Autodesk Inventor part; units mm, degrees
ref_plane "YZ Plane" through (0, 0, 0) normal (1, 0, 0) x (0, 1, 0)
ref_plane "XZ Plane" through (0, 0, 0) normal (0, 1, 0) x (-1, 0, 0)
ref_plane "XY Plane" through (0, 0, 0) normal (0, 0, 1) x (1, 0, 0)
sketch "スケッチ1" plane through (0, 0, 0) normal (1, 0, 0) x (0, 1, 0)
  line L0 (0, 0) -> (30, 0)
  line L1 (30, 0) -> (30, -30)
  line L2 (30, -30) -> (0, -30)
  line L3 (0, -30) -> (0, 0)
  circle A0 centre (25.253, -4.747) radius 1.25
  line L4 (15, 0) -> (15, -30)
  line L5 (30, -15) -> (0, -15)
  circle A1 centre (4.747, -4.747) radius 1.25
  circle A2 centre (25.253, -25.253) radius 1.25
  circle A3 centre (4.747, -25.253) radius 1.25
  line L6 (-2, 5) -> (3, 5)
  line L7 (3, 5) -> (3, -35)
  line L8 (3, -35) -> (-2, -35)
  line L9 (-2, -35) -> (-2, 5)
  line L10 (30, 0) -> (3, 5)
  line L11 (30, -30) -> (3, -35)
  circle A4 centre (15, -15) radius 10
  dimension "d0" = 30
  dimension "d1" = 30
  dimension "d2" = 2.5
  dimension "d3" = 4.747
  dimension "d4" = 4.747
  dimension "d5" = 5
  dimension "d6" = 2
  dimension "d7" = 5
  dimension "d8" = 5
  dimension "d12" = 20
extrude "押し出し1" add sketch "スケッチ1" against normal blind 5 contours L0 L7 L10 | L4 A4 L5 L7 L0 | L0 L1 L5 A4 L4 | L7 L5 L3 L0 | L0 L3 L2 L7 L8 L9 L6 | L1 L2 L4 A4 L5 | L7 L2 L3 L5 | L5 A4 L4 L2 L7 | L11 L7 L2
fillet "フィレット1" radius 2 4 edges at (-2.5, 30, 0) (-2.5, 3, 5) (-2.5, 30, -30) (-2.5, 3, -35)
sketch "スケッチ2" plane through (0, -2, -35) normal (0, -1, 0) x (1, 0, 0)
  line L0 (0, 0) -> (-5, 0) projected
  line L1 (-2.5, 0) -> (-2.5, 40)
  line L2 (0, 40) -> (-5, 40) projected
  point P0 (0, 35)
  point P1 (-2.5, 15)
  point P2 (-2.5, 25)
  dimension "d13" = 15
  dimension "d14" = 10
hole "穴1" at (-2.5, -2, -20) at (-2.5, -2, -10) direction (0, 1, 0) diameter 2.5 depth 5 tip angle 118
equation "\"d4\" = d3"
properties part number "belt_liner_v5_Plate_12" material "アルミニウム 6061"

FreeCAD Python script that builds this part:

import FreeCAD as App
import Part
import Sketcher

V = App.Vector
Q = App.Units.Quantity


def edges_at(feature, points):
    """Names of the edges that pass closest to the given points."""
    edges = feature.Shape.Edges
    near = lambda p: min(range(len(edges)), key=lambda i: edges[i].distToShape(Part.Vertex(*p))[0])
    return sorted({f"Edge{near(p) + 1}" for p in points})

doc = App.newDocument("Part")
body = doc.addObject("PartDesign::Body", "Body")

sketch1 = body.newObject("Sketcher::SketchObject", "Sketch")
sketch1.AttachmentSupport = (doc.getObject("YZ_Plane"), [""])
sketch1.MapMode = "FlatFace"
sketch1.addGeometry([
    Part.LineSegment(V(30, 0, 0), V(3, 5, 0)),
    Part.LineSegment(V(3, 5, 0), V(-2, 5, 0)),
    Part.LineSegment(V(-2, 5, 0), V(-2, -35, 0)),
    Part.LineSegment(V(-2, -35, 0), V(3, -35, 0)),
    Part.LineSegment(V(3, -35, 0), V(30, -30, 0)),
    Part.LineSegment(V(30, -30, 0), V(30, 0, 0)),
    Part.Circle(V(15, -15, 0), V(0, 0, 1), 10),
    Part.Circle(V(4.7, -4.7, 0), V(0, 0, 1), 1.2),
    Part.Circle(V(25.3, -4.7, 0), V(0, 0, 1), 1.2),
    Part.Circle(V(4.7, -25.3, 0), V(0, 0, 1), 1.2),
    Part.Circle(V(25.3, -25.3, 0), V(0, 0, 1), 1.2),
], False)
sketch1.addConstraint([
    Sketcher.Constraint("Coincident", 0, 2, 1, 1),
    Sketcher.Constraint("Coincident", 1, 2, 2, 1),
    Sketcher.Constraint("Coincident", 2, 2, 3, 1),
    Sketcher.Constraint("Coincident", 3, 2, 4, 1),
    Sketcher.Constraint("Coincident", 4, 2, 5, 1),
    Sketcher.Constraint("Coincident", 5, 2, 0, 1),
    Sketcher.Constraint("Horizontal", 1),
    Sketcher.Constraint("Vertical", 2),
    Sketcher.Constraint("Horizontal", 3),
    Sketcher.Constraint("Vertical", 5),
    Sketcher.Constraint("Equal", 7, 8),
    Sketcher.Constraint("Equal", 8, 9),
    Sketcher.Constraint("Equal", 9, 10),
    Sketcher.Constraint("PointOnObject", 5, 2, -1),
    Sketcher.Constraint("Horizontal", 7, 3, 8, 3),
    Sketcher.Constraint("Horizontal", 9, 3, 10, 3),
    Sketcher.Constraint("Vertical", 7, 3, 9, 3),
    Sketcher.Constraint("Vertical", 8, 3, 10, 3),
    Sketcher.Constraint("Vertical", 0, 2, 3, 2),
    Sketcher.Constraint("Equal", 0, 4),
    Sketcher.Constraint("Diameter", 6, Q("20 mm")),
    Sketcher.Constraint("Diameter", 7, Q("2.5 mm")),
    Sketcher.Constraint("DistanceX", 1, 2, 1, 1, Q("5 mm")),
    Sketcher.Constraint("DistanceY", 5, 1, 5, 2, Q("30 mm")),
    Sketcher.Constraint("DistanceY", -1, 1, 0, 2, Q("5 mm")),
    Sketcher.Constraint("DistanceX", 1, 2, -1, 1, Q("2 mm")),
    Sketcher.Constraint("DistanceX", -1, 1, 4, 2, Q("30 mm")),
    Sketcher.Constraint("DistanceY", 6, 3, 0, 2, Q("20 mm")),
    Sketcher.Constraint("DistanceX", -1, 1, 6, 3, Q("15 mm")),
    Sketcher.Constraint("DistanceX", -1, 1, 7, 3, Q("4.747 mm")),
    Sketcher.Constraint("DistanceY", 7, 3, -1, 1, Q("4.747 mm")),
    Sketcher.Constraint("DistanceX", 10, 3, 4, 2, Q("4.747 mm")),
    Sketcher.Constraint("DistanceY", 4, 2, 10, 3, Q("4.747 mm")),
])
pad1 = body.newObject("PartDesign::Pad", "Pad")
pad1.Profile = sketch1
pad1.Length = 5
pad1.Reversed = True
doc.recompute()

fillet = body.newObject("PartDesign::Fillet", "Fillet")
fillet.Base = (pad1, edges_at(pad1, [
    (-2.5, 30, 0),
    (-2.5, 3, 5),
    (-2.5, 30, -30),
    (-2.5, 3, -35),
]))
fillet.Radius = 2

sketch2 = body.newObject("Sketcher::SketchObject", "Sketch001")
sketch2.AttachmentSupport = (doc.getObject("XZ_Plane"), [""])
sketch2.MapMode = "FlatFace"
sketch2.AttachmentOffset = App.Placement(V(0, 0, 2), App.Rotation())
sketch2.addGeometry([
    Part.Circle(V(-2.5, -20, 0), V(0, 0, 1), 1.2),
    Part.Circle(V(-2.5, -10, 0), V(0, 0, 1), 1.2),
], False)
sketch2.addConstraint([
    Sketcher.Constraint("Equal", 0, 1),
    Sketcher.Constraint("Vertical", 0, 3, 1, 3),
    Sketcher.Constraint("Diameter", 0, Q("2.5 mm")),
    Sketcher.Constraint("DistanceY", 0, 3, -1, 1, Q("20 mm")),
    Sketcher.Constraint("DistanceY", 1, 3, -1, 1, Q("10 mm")),
    Sketcher.Constraint("DistanceX", 0, 3, -1, 1, Q("2.5 mm")),
])
doc.recompute()
hole = body.newObject("PartDesign::Hole", "Hole")
hole.Profile = sketch2
hole.ThreadType = "None"
hole.Diameter = 2.5
hole.DepthType = "Dimension"
hole.Depth = 5
hole.DrillPoint = "Angled"
hole.DrillPointAngle = 118

doc.recompute()
